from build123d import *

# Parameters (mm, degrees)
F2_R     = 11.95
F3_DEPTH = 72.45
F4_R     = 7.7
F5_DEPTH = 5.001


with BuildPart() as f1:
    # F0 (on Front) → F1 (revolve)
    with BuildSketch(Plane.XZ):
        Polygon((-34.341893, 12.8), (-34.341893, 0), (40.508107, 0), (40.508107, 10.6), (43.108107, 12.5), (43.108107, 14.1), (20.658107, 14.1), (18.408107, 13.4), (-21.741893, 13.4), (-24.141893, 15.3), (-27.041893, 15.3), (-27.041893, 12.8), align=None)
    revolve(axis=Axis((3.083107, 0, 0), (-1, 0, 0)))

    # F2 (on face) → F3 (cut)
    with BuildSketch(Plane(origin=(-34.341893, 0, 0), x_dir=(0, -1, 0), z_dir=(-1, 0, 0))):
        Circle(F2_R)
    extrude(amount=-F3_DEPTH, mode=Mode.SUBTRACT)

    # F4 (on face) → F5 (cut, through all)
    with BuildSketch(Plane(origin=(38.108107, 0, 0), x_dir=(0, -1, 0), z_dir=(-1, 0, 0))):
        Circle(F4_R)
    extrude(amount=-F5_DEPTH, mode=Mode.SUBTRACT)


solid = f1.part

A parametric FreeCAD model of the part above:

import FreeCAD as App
import Part
import Sketcher


def add_polygon(sketch, points):
    """Adds a closed chain of lines whose ends are joined by coincident constraints."""
    first, n = sketch.GeometryCount, len(points)
    for a, b in zip(points, points[1:] + points[:1]):
        sketch.addGeometry(Part.LineSegment(App.Vector(*a, 0), App.Vector(*b, 0)), False)
    for i in range(n):
        sketch.addConstraint(Sketcher.Constraint("Coincident", first + i, 2, first + (i + 1) % n, 1))

doc = App.newDocument("Part")
body = doc.addObject("PartDesign::Body", "Body")

# Sketch on XZ plane
sketch1 = body.newObject("Sketcher::SketchObject", "Sketch")
sketch1.AttachmentSupport = (doc.getObject("XZ_Plane"), [""])
sketch1.MapMode = "FlatFace"
add_polygon(sketch1, [(-34.341893, 12.8), (-34.341893, 0), (40.508107, 0), (40.508107, 10.6), (43.108107, 12.5), (43.108107, 14.1), (20.658107, 14.1), (18.408107, 13.4), (-21.741893, 13.4), (-24.141893, 15.3), (-27.041893, 15.3), (-27.041893, 12.8)])  # lines 0-11
sketch1.addConstraint([
    Sketcher.Constraint("Vertical", 0),
    Sketcher.Constraint("Horizontal", 1),
    Sketcher.Constraint("Vertical", 2),
    Sketcher.Constraint("Vertical", 4),
    Sketcher.Constraint("Horizontal", 5),
    Sketcher.Constraint("Horizontal", 7),
    Sketcher.Constraint("Horizontal", 9),
    Sketcher.Constraint("Vertical", 10),
    Sketcher.Constraint("Horizontal", 11),
    Sketcher.Constraint("PointOnObject", 0, 2, -1),
    Sketcher.Constraint("DistanceX", 9, 2, 9, 1, 2.9),
    Sketcher.Constraint("DistanceX", 11, 2, 11, 1, 7.3),
    Sketcher.Constraint("DistanceY", 0, 2, 0, 1, 12.8),
    Sketcher.Constraint("DistanceY", 2, 1, 2, 2, 10.6),
    Sketcher.Constraint("DistanceY", 4, 1, 4, 2, 1.6),
    Sketcher.Constraint("DistanceY", 10, 2, 10, 1, 2.5),
    Sketcher.Constraint("DistanceX", 0, 2, 5, 2, 55.0),
    Sketcher.Constraint("DistanceX", 1, 1, 1, 2, 74.85),
    Sketcher.Constraint("DistanceX", 5, 2, 5, 1, 22.45),
    Sketcher.Constraint("DistanceX", 7, 2, 7, 1, 40.15),
    Sketcher.Constraint("DistanceY", -1, 1, 3, 2, 12.5),
    Sketcher.Constraint("DistanceY", -1, 1, 6, 2, 13.4),
    Sketcher.Constraint("DistanceX", 6, 2, 2, 2, 22.1),
    Sketcher.Constraint("DistanceX", 0, 2, -1, 1, 34.341893),
])
revolution = body.newObject("PartDesign::Revolution", "Revolution")
revolution.Profile = sketch1
revolution.ReferenceAxis = (sketch1, ["H_Axis"])
revolution.Angle = 360

# Sketch on YZ plane
sketch2 = body.newObject("Sketcher::SketchObject", "Sketch001")
sketch2.AttachmentSupport = (doc.getObject("YZ_Plane"), [""])
sketch2.MapMode = "FlatFace"
sketch2.AttachmentOffset = App.Placement(App.Vector(0, 0, -34.341893), App.Rotation())
sketch2.addGeometry(Part.Circle(App.Vector(0, 0, 0), App.Vector(0, 0, 1), 11.95), False)
sketch2.addConstraint([
    Sketcher.Constraint("Coincident", 0, 3, -1, 1),
    Sketcher.Constraint("Diameter", 0, 23.9),
])
pocket1 = body.newObject("PartDesign::Pocket", "Pocket")
pocket1.Profile = sketch2
pocket1.Length = 72.45
pocket1.Reversed = True

# Sketch on YZ plane
sketch3 = body.newObject("Sketcher::SketchObject", "Sketch002")
sketch3.AttachmentSupport = (doc.getObject("YZ_Plane"), [""])
sketch3.MapMode = "FlatFace"
sketch3.AttachmentOffset = App.Placement(App.Vector(0, 0, 38.108107), App.Rotation())
sketch3.addGeometry(Part.Circle(App.Vector(0, 0, 0), App.Vector(0, 0, 1), 7.7), False)
sketch3.addConstraint([
    Sketcher.Constraint("Coincident", 0, 3, -1, 1),
    Sketcher.Constraint("Diameter", 0, 15.4),
])
pocket2 = body.newObject("PartDesign::Pocket", "Pocket001")
pocket2.Profile = sketch3
pocket2.Type = "ThroughAll"
pocket2.Reversed = True

doc.recompute()
